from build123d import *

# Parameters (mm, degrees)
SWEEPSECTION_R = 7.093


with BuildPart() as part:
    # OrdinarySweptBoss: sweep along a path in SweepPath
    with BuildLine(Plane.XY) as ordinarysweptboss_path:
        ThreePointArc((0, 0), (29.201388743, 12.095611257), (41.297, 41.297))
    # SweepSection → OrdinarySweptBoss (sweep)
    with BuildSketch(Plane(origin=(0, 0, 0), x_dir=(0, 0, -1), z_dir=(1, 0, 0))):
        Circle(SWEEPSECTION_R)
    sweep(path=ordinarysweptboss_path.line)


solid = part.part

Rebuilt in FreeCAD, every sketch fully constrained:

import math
import FreeCAD as App
import Part
import Sketcher
from FreeCAD import Vector
Q = App.Units.Quantity

doc = App.newDocument("Part")
body = doc.addObject("PartDesign::Body", "Body")

# Sketch on YZ plane
sketch1 = body.newObject("Sketcher::SketchObject", "Sketch")
sketch1.AttachmentSupport = (doc.getObject("YZ_Plane"), [""])
sketch1.MapMode = "FlatFace"
sketch1.addGeometry(Part.Circle(Vector(0, 0, 0), Vector(0, 0, 1), 7), False)
sketch1.addConstraint(Sketcher.Constraint("Coincident", 0, 3, -1, 1))
sketch1.addConstraint(Sketcher.Constraint("Diameter", 0, Q("14.186 mm")))

# Sketch on XY plane
sketch2 = body.newObject("Sketcher::SketchObject", "Sketch001")
sketch2.AttachmentSupport = (doc.getObject("XY_Plane"), [""])
sketch2.MapMode = "FlatFace"
sketch2.addGeometry(Part.ArcOfCircle(Part.Circle(Vector(0, 41, 0), Vector(0, 0, 1), 41), math.radians(-90), math.radians(0)), False)
sketch2.addConstraint(Sketcher.Constraint("Coincident", 0, 1, -1, 1))
sketch2.addConstraint(Sketcher.Constraint("PointOnObject", 0, 3, -2))
sketch2.addConstraint(Sketcher.Constraint("Radius", 0, Q("41.297 mm")))
sketch2.addConstraint(Sketcher.Constraint("DistanceY", -1, 1, 0, 2, Q("41.297 mm")))
doc.recompute()

additivepipe = body.newObject("PartDesign::AdditivePipe", "AdditivePipe")
additivepipe.Profile = sketch1
additivepipe.Spine = (sketch2, ["Edge1"])

doc.recompute()
